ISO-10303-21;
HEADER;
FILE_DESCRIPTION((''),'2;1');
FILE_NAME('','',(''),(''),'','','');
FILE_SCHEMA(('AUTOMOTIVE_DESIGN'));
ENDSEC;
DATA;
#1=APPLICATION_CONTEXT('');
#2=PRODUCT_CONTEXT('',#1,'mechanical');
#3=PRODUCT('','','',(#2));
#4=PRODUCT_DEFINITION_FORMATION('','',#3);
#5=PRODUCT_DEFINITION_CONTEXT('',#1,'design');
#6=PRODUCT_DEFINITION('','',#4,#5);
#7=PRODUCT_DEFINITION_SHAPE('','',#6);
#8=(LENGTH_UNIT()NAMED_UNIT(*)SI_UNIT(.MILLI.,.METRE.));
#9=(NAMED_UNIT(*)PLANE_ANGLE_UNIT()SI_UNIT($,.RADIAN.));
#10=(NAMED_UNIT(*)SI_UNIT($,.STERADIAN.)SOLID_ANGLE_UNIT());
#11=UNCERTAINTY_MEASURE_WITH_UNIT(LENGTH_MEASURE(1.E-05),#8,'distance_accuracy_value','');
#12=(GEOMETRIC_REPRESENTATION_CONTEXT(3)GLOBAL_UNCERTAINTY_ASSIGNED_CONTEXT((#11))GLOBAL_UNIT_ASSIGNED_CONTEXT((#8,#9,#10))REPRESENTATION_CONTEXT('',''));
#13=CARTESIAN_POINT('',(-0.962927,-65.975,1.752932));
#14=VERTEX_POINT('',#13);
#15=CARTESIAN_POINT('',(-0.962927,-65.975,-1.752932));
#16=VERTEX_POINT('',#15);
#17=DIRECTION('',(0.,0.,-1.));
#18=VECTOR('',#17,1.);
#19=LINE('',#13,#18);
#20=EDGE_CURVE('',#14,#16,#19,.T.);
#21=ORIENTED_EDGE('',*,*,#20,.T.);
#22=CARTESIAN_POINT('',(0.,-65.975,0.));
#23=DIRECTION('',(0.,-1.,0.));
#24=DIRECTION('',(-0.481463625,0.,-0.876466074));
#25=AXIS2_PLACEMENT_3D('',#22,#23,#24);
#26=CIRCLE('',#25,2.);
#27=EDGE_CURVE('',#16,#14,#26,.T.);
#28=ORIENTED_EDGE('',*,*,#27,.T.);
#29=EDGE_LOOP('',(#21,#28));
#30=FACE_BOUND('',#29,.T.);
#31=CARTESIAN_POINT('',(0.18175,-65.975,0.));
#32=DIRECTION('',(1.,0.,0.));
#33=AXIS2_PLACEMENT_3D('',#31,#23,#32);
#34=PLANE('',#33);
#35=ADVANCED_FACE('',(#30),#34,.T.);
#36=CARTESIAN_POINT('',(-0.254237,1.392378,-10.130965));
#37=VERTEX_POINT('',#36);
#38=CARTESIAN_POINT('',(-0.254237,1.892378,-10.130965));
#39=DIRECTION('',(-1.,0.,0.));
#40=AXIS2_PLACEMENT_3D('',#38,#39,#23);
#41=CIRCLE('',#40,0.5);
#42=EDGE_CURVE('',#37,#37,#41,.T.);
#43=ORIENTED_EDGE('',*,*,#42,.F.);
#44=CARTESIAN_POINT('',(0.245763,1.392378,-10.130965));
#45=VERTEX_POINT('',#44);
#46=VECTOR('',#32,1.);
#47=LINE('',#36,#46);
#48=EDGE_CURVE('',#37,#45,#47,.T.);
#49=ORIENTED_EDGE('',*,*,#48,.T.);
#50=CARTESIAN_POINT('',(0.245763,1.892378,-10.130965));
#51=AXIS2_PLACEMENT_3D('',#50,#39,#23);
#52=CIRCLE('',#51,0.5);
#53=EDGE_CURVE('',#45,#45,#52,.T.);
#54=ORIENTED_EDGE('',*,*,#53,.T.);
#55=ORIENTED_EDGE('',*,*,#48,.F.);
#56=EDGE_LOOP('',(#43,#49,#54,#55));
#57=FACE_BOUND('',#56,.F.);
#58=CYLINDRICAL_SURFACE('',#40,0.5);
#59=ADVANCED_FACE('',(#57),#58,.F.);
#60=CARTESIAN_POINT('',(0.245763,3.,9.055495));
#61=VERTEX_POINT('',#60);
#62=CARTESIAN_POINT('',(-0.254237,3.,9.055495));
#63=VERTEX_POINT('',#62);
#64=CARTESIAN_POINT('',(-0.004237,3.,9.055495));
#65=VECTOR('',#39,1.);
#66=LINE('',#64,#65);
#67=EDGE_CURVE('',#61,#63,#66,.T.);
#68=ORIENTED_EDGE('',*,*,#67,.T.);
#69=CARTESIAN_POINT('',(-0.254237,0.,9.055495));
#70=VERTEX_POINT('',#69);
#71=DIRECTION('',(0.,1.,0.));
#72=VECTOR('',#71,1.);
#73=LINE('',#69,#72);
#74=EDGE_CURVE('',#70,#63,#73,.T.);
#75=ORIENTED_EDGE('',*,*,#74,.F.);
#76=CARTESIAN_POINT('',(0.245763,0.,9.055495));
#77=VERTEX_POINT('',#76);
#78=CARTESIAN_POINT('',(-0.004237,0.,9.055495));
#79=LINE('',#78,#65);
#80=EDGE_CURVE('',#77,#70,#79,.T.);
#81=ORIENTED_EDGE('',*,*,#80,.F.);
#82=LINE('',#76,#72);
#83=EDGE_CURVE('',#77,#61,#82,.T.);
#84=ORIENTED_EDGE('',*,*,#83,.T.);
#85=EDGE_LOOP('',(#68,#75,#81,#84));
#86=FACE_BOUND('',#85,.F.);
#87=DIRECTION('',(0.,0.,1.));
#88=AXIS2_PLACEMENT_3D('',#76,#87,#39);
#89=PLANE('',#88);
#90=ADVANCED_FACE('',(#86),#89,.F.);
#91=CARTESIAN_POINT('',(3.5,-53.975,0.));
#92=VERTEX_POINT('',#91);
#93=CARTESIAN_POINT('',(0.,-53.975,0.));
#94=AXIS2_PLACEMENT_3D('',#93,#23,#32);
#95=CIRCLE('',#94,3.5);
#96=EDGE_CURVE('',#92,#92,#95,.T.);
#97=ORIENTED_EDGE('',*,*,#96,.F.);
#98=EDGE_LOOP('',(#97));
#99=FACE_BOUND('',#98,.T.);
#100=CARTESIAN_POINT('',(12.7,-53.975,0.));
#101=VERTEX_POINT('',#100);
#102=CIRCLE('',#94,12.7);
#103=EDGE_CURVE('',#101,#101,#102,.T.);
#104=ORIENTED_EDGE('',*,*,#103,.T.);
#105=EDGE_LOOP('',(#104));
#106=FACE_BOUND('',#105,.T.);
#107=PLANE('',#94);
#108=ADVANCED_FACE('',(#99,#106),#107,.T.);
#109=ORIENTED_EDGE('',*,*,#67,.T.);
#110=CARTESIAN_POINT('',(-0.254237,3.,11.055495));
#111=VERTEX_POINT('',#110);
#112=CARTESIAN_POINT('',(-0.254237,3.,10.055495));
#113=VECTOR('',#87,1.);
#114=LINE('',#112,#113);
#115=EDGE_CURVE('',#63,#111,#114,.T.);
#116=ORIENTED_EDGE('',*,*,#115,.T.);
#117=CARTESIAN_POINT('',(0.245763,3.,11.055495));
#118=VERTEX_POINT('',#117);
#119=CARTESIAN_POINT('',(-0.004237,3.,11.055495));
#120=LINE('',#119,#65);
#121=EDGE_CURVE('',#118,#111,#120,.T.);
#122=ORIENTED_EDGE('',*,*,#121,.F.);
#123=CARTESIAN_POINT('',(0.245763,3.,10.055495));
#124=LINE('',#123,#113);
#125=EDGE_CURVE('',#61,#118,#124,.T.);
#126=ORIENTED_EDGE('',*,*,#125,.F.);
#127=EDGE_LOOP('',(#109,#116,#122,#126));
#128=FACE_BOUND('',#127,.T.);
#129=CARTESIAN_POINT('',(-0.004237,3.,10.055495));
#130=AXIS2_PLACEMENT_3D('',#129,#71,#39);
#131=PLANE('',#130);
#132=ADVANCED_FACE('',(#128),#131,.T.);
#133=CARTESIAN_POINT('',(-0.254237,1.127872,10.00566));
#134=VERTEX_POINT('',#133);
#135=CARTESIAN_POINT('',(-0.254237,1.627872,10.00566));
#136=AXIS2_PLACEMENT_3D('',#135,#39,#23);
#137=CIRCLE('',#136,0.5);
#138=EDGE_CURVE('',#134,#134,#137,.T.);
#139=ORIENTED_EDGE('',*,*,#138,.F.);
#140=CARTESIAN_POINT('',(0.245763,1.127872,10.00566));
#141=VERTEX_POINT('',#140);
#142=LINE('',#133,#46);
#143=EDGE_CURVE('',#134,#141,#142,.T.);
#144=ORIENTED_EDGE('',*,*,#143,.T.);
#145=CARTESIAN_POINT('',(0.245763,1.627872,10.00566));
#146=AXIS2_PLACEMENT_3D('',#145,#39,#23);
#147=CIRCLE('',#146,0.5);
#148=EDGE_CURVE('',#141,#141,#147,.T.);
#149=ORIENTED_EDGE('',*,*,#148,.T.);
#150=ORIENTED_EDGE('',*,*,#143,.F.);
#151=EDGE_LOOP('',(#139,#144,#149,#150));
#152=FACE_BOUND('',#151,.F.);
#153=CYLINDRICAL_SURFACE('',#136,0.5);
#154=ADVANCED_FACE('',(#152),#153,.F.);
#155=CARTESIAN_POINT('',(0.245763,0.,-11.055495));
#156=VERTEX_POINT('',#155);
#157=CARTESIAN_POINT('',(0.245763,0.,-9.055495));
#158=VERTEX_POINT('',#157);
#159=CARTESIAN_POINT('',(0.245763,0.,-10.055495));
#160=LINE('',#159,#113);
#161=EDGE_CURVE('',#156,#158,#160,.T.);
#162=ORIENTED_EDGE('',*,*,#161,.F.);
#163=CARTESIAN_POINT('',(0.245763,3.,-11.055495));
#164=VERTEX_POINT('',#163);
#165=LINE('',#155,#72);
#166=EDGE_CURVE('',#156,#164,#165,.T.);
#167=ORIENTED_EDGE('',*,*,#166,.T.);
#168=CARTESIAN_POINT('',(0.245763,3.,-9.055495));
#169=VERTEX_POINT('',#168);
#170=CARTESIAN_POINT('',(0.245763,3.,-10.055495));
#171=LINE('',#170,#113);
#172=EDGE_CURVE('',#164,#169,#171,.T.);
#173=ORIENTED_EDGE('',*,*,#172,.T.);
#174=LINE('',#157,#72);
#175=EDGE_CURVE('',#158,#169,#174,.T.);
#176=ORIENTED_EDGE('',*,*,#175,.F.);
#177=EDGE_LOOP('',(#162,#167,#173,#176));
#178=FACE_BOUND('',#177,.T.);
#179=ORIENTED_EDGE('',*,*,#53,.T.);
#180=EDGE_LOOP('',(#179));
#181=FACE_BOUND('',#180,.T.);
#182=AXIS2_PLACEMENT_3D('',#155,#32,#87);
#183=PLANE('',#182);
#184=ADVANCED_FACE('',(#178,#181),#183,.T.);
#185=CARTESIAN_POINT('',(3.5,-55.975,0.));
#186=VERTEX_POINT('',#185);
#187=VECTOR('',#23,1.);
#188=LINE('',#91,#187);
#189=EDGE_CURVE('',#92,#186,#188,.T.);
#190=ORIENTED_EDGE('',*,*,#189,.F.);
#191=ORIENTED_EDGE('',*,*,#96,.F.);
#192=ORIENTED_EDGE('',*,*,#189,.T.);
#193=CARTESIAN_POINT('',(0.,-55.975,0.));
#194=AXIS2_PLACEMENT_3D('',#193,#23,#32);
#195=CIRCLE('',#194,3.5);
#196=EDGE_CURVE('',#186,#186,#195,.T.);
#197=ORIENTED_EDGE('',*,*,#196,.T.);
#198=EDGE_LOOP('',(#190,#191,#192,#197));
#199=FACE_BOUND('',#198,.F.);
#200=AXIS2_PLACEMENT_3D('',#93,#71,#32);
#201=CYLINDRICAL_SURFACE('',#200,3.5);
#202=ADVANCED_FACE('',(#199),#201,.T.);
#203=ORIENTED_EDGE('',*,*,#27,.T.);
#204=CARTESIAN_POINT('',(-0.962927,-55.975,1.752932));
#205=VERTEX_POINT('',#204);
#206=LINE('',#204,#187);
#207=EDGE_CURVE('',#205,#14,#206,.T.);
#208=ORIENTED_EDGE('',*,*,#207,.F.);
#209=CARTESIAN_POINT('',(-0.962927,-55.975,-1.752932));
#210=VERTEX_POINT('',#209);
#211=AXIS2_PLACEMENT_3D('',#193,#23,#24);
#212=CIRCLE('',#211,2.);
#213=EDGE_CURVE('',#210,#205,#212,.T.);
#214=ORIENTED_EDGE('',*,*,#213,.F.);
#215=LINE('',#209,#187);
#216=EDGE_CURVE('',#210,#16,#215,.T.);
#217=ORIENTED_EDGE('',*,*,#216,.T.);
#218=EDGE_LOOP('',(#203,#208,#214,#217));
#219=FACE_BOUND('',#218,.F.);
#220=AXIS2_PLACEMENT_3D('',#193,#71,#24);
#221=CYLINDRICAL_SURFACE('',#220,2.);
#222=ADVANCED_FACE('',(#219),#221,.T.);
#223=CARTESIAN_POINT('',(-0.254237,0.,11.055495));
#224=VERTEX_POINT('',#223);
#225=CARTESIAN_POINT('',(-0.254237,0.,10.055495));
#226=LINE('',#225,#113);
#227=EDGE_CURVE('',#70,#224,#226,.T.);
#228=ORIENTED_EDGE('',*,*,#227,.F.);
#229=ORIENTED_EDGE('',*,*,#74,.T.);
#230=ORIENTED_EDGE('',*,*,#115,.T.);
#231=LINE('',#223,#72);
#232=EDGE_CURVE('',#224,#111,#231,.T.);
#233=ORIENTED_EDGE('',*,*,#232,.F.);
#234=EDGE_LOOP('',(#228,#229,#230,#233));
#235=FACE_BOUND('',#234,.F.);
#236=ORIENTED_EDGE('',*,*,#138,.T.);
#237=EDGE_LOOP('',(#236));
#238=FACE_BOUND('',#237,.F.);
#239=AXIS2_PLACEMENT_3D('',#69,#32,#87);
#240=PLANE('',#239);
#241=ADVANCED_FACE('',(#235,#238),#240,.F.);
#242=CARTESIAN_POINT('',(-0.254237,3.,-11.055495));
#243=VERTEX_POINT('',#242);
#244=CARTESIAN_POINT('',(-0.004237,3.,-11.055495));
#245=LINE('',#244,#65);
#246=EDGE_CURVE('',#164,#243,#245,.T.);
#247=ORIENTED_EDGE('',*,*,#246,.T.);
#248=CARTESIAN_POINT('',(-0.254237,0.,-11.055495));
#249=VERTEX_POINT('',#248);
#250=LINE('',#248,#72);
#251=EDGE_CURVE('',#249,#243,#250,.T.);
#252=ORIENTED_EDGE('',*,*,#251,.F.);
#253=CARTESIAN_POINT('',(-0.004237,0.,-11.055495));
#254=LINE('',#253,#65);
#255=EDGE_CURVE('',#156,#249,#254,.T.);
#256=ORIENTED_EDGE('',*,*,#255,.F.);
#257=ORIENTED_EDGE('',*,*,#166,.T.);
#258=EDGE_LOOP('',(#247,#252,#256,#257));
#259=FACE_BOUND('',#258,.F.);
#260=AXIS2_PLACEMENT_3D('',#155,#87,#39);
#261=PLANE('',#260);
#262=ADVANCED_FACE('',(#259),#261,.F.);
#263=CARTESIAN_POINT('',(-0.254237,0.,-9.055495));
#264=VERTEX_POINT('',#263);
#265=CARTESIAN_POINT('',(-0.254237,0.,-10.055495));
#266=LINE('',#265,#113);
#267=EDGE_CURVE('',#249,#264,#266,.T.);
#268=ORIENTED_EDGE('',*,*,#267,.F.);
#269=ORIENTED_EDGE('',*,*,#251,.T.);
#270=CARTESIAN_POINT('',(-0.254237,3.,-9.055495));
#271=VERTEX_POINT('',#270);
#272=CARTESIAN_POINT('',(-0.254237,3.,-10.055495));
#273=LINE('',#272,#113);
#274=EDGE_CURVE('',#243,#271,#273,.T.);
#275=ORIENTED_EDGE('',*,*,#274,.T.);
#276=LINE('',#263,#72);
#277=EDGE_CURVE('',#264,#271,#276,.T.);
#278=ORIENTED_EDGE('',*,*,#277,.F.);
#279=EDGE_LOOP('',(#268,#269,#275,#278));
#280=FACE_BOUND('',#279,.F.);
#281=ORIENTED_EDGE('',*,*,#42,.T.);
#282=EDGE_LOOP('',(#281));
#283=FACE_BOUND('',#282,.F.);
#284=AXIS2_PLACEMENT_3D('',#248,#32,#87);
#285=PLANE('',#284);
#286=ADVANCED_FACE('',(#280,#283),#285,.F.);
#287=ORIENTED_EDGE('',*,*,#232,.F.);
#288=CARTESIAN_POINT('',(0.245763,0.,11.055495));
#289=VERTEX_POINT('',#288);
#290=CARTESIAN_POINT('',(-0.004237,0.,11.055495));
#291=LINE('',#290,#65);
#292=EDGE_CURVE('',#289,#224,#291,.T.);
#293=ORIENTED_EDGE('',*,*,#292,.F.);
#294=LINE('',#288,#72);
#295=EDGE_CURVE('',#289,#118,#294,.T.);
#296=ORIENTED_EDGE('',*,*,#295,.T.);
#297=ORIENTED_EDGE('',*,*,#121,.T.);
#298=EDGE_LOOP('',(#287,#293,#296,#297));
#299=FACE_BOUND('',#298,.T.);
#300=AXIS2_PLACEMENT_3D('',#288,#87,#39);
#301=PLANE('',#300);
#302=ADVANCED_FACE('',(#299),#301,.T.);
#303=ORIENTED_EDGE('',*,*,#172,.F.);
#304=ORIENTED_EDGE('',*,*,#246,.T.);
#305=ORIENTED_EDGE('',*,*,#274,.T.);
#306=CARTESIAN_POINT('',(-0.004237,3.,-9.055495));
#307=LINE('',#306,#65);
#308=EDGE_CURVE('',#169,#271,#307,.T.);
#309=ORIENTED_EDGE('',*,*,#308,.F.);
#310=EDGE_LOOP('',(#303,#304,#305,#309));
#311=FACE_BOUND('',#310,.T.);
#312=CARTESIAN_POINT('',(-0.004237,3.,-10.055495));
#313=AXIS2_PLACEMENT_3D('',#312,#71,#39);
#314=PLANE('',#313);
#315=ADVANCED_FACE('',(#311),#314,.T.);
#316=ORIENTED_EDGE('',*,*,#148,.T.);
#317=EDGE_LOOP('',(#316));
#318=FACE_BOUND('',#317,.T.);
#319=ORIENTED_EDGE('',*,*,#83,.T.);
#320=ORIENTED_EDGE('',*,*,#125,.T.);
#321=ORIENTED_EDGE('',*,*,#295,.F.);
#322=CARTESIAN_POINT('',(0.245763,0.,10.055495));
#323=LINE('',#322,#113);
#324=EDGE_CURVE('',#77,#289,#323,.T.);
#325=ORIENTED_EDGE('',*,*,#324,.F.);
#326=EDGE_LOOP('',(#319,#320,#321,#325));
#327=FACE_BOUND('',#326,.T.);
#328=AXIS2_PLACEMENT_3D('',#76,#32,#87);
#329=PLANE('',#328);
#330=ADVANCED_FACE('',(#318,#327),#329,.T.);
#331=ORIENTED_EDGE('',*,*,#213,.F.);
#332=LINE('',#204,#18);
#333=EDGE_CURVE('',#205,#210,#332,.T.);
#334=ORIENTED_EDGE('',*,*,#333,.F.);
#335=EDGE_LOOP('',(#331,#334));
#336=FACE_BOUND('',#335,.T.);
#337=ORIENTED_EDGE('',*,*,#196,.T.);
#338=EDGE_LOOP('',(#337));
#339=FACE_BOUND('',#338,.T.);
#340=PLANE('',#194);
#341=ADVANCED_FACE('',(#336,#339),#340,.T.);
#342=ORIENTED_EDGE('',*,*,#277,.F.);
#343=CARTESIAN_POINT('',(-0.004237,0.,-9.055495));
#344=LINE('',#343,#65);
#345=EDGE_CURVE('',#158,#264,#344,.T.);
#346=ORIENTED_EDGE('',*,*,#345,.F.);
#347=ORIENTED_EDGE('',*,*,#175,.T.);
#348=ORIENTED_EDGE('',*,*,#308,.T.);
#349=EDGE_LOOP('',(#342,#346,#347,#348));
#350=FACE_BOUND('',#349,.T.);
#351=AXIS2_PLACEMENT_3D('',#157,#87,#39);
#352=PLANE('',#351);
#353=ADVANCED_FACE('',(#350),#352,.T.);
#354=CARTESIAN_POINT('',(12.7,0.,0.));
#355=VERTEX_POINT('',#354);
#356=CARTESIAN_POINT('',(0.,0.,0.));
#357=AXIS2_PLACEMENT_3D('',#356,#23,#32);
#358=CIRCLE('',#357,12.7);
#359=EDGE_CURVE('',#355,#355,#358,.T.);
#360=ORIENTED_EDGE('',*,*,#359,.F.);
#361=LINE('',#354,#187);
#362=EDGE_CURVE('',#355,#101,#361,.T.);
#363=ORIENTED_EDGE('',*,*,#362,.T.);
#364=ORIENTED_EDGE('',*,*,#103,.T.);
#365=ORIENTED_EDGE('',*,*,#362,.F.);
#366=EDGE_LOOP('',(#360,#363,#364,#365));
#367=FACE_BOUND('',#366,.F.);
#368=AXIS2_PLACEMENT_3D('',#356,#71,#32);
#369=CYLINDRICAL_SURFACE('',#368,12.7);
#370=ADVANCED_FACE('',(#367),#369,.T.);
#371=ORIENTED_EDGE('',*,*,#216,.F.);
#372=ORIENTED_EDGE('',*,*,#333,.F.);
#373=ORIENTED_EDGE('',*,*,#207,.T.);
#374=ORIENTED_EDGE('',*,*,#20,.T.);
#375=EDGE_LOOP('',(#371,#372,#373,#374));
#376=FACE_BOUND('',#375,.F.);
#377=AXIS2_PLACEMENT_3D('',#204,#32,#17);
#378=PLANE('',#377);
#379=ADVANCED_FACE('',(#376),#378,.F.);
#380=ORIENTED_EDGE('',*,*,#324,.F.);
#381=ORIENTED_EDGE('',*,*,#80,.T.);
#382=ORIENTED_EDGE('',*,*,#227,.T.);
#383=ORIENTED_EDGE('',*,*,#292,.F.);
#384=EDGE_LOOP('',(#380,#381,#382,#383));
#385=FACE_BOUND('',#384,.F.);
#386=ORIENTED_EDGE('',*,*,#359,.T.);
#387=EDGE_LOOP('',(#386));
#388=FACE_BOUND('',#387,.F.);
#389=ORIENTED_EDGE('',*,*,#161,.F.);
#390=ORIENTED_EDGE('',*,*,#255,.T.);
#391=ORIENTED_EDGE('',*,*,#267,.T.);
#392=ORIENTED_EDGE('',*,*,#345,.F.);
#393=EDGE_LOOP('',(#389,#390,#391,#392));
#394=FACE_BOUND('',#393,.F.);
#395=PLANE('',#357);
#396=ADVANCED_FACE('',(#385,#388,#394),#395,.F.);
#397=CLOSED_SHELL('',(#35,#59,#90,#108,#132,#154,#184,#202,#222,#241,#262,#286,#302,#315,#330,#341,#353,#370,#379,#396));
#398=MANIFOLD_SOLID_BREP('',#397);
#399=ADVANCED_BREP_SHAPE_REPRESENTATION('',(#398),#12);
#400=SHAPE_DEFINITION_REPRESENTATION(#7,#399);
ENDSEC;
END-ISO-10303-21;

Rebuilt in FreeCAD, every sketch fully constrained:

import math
import FreeCAD as App
import Part
import Sketcher
from FreeCAD import Vector
Q = App.Units.Quantity

doc = App.newDocument("Part")
params = doc.addObject("Spreadsheet::Sheet", "Params")
for row, (alias, value) in enumerate([
    ("sketch1_diameter", "25.4 mm"),
    ("pad1_length", "53.975 mm"),
    ("sketch2_diameter", "7 mm"),
    ("pad2_length", "2 mm"),
    ("sketch3_radius", "2 mm"),
    ("pad3_length", "10 mm"),
    ("sketch4_height", "2 mm"),
    ("sketch4_width", "0.5 mm"),
    ("pad4_length", "3 mm"),
    ("sketch5_diameter", "1 mm"),
    ("pocket1_length", "25.4 mm"),
], start=1):
    params.set(f"A{row}", alias)
    params.set(f"B{row}", "=" + value)
    params.setAlias(f"B{row}", alias)

body = doc.addObject("PartDesign::Body", "Body")

sketch1 = doc.addObject("Sketcher::SketchObject", "Sketch")
body.addObject(sketch1)
sketch1.AttachmentSupport = (doc.XZ_Plane, [""])
sketch1.MapMode = "FlatFace"
sketch1.addGeometry(Part.Circle(Vector(0, 0, 0), Vector(0, 0, 1), 13), False)
sketch1.addConstraint(Sketcher.Constraint("Coincident", 0, 3, -1, 1))
sketch1.addConstraint(Sketcher.Constraint("Diameter", 0, Q("25.4 mm")))
sketch1.setExpression("Constraints[1]", "Params.sketch1_diameter")
pad1 = doc.addObject("PartDesign::Pad", "Pad")
body.addObject(pad1)
pad1.Profile = sketch1
pad1.setExpression("Length", "Params.pad1_length")

sketch2 = doc.addObject("Sketcher::SketchObject", "Sketch001")
body.addObject(sketch2)
sketch2.AttachmentSupport = (doc.XZ_Plane, [""])
sketch2.MapMode = "FlatFace"
sketch2.AttachmentOffset = App.Placement(Vector(0, 0, 53.975), App.Rotation())
sketch2.addGeometry(Part.Circle(Vector(0, 0, 0), Vector(0, 0, 1), 3.5), False)
sketch2.addConstraint(Sketcher.Constraint("Coincident", 0, 3, -1, 1))
sketch2.addConstraint(Sketcher.Constraint("Diameter", 0, Q("7 mm")))
sketch2.setExpression("Constraints[1]", "Params.sketch2_diameter")
pad2 = doc.addObject("PartDesign::Pad", "Pad001")
body.addObject(pad2)
pad2.Profile = sketch2
pad2.setExpression("Length", "Params.pad2_length")

sketch3 = doc.addObject("Sketcher::SketchObject", "Sketch002")
body.addObject(sketch3)
sketch3.AttachmentSupport = (doc.XZ_Plane, [""])
sketch3.MapMode = "FlatFace"
sketch3.AttachmentOffset = App.Placement(Vector(0, 0, 55.975), App.Rotation())
sketch3.addGeometry(Part.LineSegment(Vector(-1, 1.8, 0), Vector(-1, -1.8, 0)), False)
sketch3.addGeometry(Part.ArcOfCircle(Part.Circle(Vector(0, 0, 0), Vector(0, 0, 1), 2), math.radians(-119), math.radians(119)), False)
sketch3.addConstraint(Sketcher.Constraint("Coincident", 0, 1, 1, 2))
sketch3.addConstraint(Sketcher.Constraint("Coincident", 1, 1, 0, 2))
sketch3.addConstraint(Sketcher.Constraint("Vertical", 0))
sketch3.addConstraint(Sketcher.Constraint("Coincident", 1, 3, -1, 1))
sketch3.addConstraint(Sketcher.Constraint("Radius", 1, Q("2 mm")))
sketch3.addConstraint(Sketcher.Constraint("DistanceY", 0, 2, 0, 1, Q("3.505864 mm")))
sketch3.setExpression("Constraints[4]", "Params.sketch3_radius")
pad3 = doc.addObject("PartDesign::Pad", "Pad002")
body.addObject(pad3)
pad3.Profile = sketch3
pad3.setExpression("Length", "Params.pad3_length")

sketch4 = doc.addObject("Sketcher::SketchObject", "Sketch003")
body.addObject(sketch4)
sketch4.AttachmentSupport = (doc.XZ_Plane, [""])
sketch4.MapMode = "FlatFace"
sketch4.addGeometry(Part.LineSegment(Vector(0.2, 11.1, 0), Vector(0.2, 9.1, 0)), False)
sketch4.addGeometry(Part.LineSegment(Vector(0.2, 9.1, 0), Vector(-0.3, 9.1, 0)), False)
sketch4.addGeometry(Part.LineSegment(Vector(-0.3, 9.1, 0), Vector(-0.3, 11.1, 0)), False)
sketch4.addGeometry(Part.LineSegment(Vector(-0.3, 11.1, 0), Vector(0.2, 11.1, 0)), False)
sketch4.addGeometry(Part.LineSegment(Vector(0.2, -9.1, 0), Vector(0.2, -11.1, 0)), False)
sketch4.addGeometry(Part.LineSegment(Vector(0.2, -11.1, 0), Vector(-0.3, -11.1, 0)), False)
sketch4.addGeometry(Part.LineSegment(Vector(-0.3, -11.1, 0), Vector(-0.3, -9.1, 0)), False)
sketch4.addGeometry(Part.LineSegment(Vector(-0.3, -9.1, 0), Vector(0.2, -9.1, 0)), False)
sketch4.addConstraint(Sketcher.Constraint("Coincident", 0, 2, 1, 1))
sketch4.addConstraint(Sketcher.Constraint("Coincident", 1, 2, 2, 1))
sketch4.addConstraint(Sketcher.Constraint("Coincident", 2, 2, 3, 1))
sketch4.addConstraint(Sketcher.Constraint("Coincident", 3, 2, 0, 1))
sketch4.addConstraint(Sketcher.Constraint("Coincident", 4, 2, 5, 1))
sketch4.addConstraint(Sketcher.Constraint("Coincident", 5, 2, 6, 1))
sketch4.addConstraint(Sketcher.Constraint("Coincident", 6, 2, 7, 1))
sketch4.addConstraint(Sketcher.Constraint("Coincident", 7, 2, 4, 1))
sketch4.addConstraint(Sketcher.Constraint("Vertical", 0))
sketch4.addConstraint(Sketcher.Constraint("Horizontal", 1))
sketch4.addConstraint(Sketcher.Constraint("Vertical", 2))
sketch4.addConstraint(Sketcher.Constraint("Horizontal", 3))
sketch4.addConstraint(Sketcher.Constraint("Vertical", 4))
sketch4.addConstraint(Sketcher.Constraint("Horizontal", 5))
sketch4.addConstraint(Sketcher.Constraint("Vertical", 6))
sketch4.addConstraint(Sketcher.Constraint("Horizontal", 7))
sketch4.addConstraint(Sketcher.Constraint("Symmetric", 3, 2, 4, 2, -1))
sketch4.addConstraint(Sketcher.Constraint("Symmetric", 1, 2, 6, 2, -1))
sketch4.addConstraint(Sketcher.Constraint("DistanceY", 0, 2, 0, 1, Q("2 mm")))
sketch4.addConstraint(Sketcher.Constraint("DistanceX", 1, 2, 1, 1, Q("0.5 mm")))
sketch4.addConstraint(Sketcher.Constraint("DistanceY", 4, 2, 0, 2, Q("20.11099 mm")))
sketch4.addConstraint(Sketcher.Constraint("DistanceX", -1, 1, 0, 2, Q("0.245763 mm")))
sketch4.setExpression("Constraints[18]", "Params.sketch4_height")
sketch4.setExpression("Constraints[19]", "Params.sketch4_width")
pad4 = doc.addObject("PartDesign::Pad", "Pad003")
body.addObject(pad4)
pad4.Profile = sketch4
pad4.setExpression("Length", "Params.pad4_length")
pad4.Reversed = True

sketch5 = doc.addObject("Sketcher::SketchObject", "Sketch004")
body.addObject(sketch5)
sketch5.AttachmentSupport = (doc.YZ_Plane, [""])
sketch5.MapMode = "FlatFace"
sketch5.AttachmentOffset = App.Placement(Vector(0, 0, -0.254237), App.Rotation())
sketch5.addGeometry(Part.Circle(Vector(1.6, 10, 0), Vector(0, 0, 1), 0.5), False)
sketch5.addGeometry(Part.Circle(Vector(1.9, -10.1, 0), Vector(0, 0, 1), 0.5), False)
sketch5.addConstraint(Sketcher.Constraint("Equal", 0, 1))
sketch5.addConstraint(Sketcher.Constraint("Diameter", 0, Q("1 mm")))
sketch5.addConstraint(Sketcher.Constraint("DistanceY", -1, 1, 0, 3, Q("10.00566 mm")))
sketch5.addConstraint(Sketcher.Constraint("DistanceX", -1, 1, 0, 3, Q("1.627872 mm")))
sketch5.addConstraint(Sketcher.Constraint("DistanceX", -1, 1, 1, 3, Q("1.892378 mm")))
sketch5.addConstraint(Sketcher.Constraint("DistanceY", 1, 3, -1, 1, Q("10.130965 mm")))
sketch5.setExpression("Constraints[1]", "Params.sketch5_diameter")
pocket1 = doc.addObject("PartDesign::Pocket", "Pocket")
body.addObject(pocket1)
pocket1.Profile = sketch5
pocket1.setExpression("Length", "Params.pocket1_length")
pocket1.Reversed = True

doc.recompute()
